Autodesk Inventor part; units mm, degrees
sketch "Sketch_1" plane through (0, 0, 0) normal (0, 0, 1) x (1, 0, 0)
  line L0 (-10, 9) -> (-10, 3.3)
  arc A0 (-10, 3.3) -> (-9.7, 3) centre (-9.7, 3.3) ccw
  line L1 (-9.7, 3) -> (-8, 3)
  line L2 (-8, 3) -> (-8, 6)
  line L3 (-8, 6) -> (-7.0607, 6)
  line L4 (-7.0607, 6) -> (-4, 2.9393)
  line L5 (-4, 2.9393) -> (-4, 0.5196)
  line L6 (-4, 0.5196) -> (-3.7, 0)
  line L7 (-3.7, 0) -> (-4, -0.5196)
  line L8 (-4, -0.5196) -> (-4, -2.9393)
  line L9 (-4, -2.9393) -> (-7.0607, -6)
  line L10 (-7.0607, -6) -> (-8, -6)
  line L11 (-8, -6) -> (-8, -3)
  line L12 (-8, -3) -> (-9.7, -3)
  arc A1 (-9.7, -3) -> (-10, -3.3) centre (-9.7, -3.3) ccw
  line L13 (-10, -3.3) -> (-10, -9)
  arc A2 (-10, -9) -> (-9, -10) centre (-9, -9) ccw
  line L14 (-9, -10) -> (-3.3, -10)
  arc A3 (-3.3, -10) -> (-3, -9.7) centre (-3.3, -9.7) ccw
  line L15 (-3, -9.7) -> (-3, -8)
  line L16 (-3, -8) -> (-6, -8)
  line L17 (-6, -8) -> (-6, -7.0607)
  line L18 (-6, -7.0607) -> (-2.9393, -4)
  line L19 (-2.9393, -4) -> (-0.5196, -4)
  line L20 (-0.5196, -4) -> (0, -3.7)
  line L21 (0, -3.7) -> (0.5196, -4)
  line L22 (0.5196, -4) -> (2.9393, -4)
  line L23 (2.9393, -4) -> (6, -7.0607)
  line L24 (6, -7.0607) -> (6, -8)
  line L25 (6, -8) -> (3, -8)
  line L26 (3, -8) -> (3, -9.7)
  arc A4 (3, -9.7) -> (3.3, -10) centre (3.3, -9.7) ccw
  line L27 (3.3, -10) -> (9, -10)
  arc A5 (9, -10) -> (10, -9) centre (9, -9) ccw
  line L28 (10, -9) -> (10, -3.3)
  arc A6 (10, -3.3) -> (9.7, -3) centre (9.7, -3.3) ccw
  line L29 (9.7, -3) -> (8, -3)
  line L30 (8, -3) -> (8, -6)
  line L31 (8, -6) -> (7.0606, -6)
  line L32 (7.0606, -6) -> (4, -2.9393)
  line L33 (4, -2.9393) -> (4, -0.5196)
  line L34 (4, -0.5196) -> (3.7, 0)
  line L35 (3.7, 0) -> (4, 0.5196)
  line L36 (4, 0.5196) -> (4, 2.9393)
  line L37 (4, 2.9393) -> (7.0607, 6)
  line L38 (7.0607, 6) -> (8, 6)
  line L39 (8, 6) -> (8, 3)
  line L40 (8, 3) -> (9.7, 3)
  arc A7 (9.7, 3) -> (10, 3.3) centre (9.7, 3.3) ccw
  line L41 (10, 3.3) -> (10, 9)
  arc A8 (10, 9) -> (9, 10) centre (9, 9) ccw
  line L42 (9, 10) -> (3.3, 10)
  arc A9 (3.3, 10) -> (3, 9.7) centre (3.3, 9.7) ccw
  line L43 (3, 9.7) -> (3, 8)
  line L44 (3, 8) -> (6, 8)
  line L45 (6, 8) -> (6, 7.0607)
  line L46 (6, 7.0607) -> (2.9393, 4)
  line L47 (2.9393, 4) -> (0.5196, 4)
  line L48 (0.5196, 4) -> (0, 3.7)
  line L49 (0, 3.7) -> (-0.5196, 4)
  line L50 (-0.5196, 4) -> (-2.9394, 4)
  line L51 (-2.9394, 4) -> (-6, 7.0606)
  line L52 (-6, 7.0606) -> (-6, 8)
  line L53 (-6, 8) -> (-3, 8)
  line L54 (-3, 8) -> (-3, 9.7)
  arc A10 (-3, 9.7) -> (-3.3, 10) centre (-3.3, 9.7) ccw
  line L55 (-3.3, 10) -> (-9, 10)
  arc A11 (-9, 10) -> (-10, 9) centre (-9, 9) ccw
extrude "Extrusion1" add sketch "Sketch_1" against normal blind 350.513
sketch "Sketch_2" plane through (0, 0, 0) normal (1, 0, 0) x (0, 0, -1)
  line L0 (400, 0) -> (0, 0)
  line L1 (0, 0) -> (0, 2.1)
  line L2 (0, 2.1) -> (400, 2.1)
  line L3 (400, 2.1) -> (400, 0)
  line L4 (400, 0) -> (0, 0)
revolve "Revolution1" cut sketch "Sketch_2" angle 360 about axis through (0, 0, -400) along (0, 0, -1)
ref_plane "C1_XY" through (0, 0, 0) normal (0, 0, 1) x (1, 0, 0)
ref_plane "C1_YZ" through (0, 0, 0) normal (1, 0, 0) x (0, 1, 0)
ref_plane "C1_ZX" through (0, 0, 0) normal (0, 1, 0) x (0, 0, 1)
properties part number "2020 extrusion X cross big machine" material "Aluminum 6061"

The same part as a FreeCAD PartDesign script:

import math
import FreeCAD as App
import Part
import Sketcher
Q = App.Units.Quantity


def add_polygon(sketch, points):
    """Adds a closed chain of lines whose ends are joined by coincident constraints."""
    first, n = sketch.GeometryCount, len(points)
    for a, b in zip(points, points[1:] + points[:1]):
        sketch.addGeometry(Part.LineSegment(App.Vector(*a, 0), App.Vector(*b, 0)), False)
    for i in range(n):
        sketch.addConstraint(Sketcher.Constraint("Coincident", first + i, 2, first + (i + 1) % n, 1))

doc = App.newDocument("Part")
body = doc.addObject("PartDesign::Body", "Body")

sketch1 = body.newObject("Sketcher::SketchObject", "Sketch")
sketch1.AttachmentSupport = (doc.getObject("XY_Plane"), [""])
sketch1.MapMode = "FlatFace"
sketch1.addGeometry([
    Part.ArcOfCircle(Part.Circle(App.Vector(-9, 9, 0), App.Vector(0, 0, 1), 1), math.radians(90), math.radians(180)),
    Part.LineSegment(App.Vector(-10, 9, 0), App.Vector(-10, 3.3, 0)),
    Part.ArcOfCircle(Part.Circle(App.Vector(-9.7, 3.3, 0), App.Vector(0, 0, 1), 0.3), math.radians(180), math.radians(270)),
    Part.LineSegment(App.Vector(-9.7, 3, 0), App.Vector(-8, 3, 0)),
    Part.LineSegment(App.Vector(-8, 3, 0), App.Vector(-8, 6, 0)),
    Part.LineSegment(App.Vector(-8, 6, 0), App.Vector(-7.06, 6, 0)),
    Part.LineSegment(App.Vector(-7.06, 6, 0), App.Vector(-4, 2.94, 0)),
    Part.LineSegment(App.Vector(-4, 2.94, 0), App.Vector(-4, 0.52, 0)),
    Part.LineSegment(App.Vector(-4, 0.52, 0), App.Vector(-3.7, 0, 0)),
    Part.LineSegment(App.Vector(-3.7, 0, 0), App.Vector(-4, -0.52, 0)),
    Part.LineSegment(App.Vector(-4, -0.52, 0), App.Vector(-4, -2.94, 0)),
    Part.LineSegment(App.Vector(-4, -2.94, 0), App.Vector(-7.06, -6, 0)),
    Part.LineSegment(App.Vector(-7.06, -6, 0), App.Vector(-8, -6, 0)),
    Part.LineSegment(App.Vector(-8, -6, 0), App.Vector(-8, -3, 0)),
    Part.LineSegment(App.Vector(-8, -3, 0), App.Vector(-9.7, -3, 0)),
    Part.ArcOfCircle(Part.Circle(App.Vector(-9.7, -3.3, 0), App.Vector(0, 0, 1), 0.3), math.radians(90), math.radians(180)),
    Part.LineSegment(App.Vector(-10, -3.3, 0), App.Vector(-10, -9, 0)),
    Part.ArcOfCircle(Part.Circle(App.Vector(-9, -9, 0), App.Vector(0, 0, 1), 1), math.radians(180), math.radians(270)),
    Part.LineSegment(App.Vector(-9, -10, 0), App.Vector(-3.3, -10, 0)),
    Part.ArcOfCircle(Part.Circle(App.Vector(-3.3, -9.7, 0), App.Vector(0, 0, 1), 0.3), math.radians(-90), math.radians(0)),
    Part.LineSegment(App.Vector(-3, -9.7, 0), App.Vector(-3, -8, 0)),
    Part.LineSegment(App.Vector(-3, -8, 0), App.Vector(-6, -8, 0)),
    Part.LineSegment(App.Vector(-6, -8, 0), App.Vector(-6, -7.06, 0)),
    Part.LineSegment(App.Vector(-6, -7.06, 0), App.Vector(-2.94, -4, 0)),
    Part.LineSegment(App.Vector(-2.94, -4, 0), App.Vector(-0.52, -4, 0)),
    Part.LineSegment(App.Vector(-0.52, -4, 0), App.Vector(0, -3.7, 0)),
    Part.LineSegment(App.Vector(0, -3.7, 0), App.Vector(0.52, -4, 0)),
    Part.LineSegment(App.Vector(0.52, -4, 0), App.Vector(2.94, -4, 0)),
    Part.LineSegment(App.Vector(2.94, -4, 0), App.Vector(6, -7.06, 0)),
    Part.LineSegment(App.Vector(6, -7.06, 0), App.Vector(6, -8, 0)),
    Part.LineSegment(App.Vector(6, -8, 0), App.Vector(3, -8, 0)),
    Part.LineSegment(App.Vector(3, -8, 0), App.Vector(3, -9.7, 0)),
    Part.ArcOfCircle(Part.Circle(App.Vector(3.3, -9.7, 0), App.Vector(0, 0, 1), 0.3), math.radians(180), math.radians(270)),
    Part.LineSegment(App.Vector(3.3, -10, 0), App.Vector(9, -10, 0)),
    Part.ArcOfCircle(Part.Circle(App.Vector(9, -9, 0), App.Vector(0, 0, 1), 1), math.radians(-90), math.radians(0)),
    Part.LineSegment(App.Vector(10, -9, 0), App.Vector(10, -3.3, 0)),
    Part.ArcOfCircle(Part.Circle(App.Vector(9.7, -3.3, 0), App.Vector(0, 0, 1), 0.3), math.radians(0), math.radians(90)),
    Part.LineSegment(App.Vector(9.7, -3, 0), App.Vector(8, -3, 0)),
    Part.LineSegment(App.Vector(8, -3, 0), App.Vector(8, -6, 0)),
    Part.LineSegment(App.Vector(8, -6, 0), App.Vector(7.06, -6, 0)),
    Part.LineSegment(App.Vector(7.06, -6, 0), App.Vector(4, -2.94, 0)),
    Part.LineSegment(App.Vector(4, -2.94, 0), App.Vector(4, -0.52, 0)),
    Part.LineSegment(App.Vector(4, -0.52, 0), App.Vector(3.7, 0, 0)),
    Part.LineSegment(App.Vector(3.7, 0, 0), App.Vector(4, 0.52, 0)),
    Part.LineSegment(App.Vector(4, 0.52, 0), App.Vector(4, 2.94, 0)),
    Part.LineSegment(App.Vector(4, 2.94, 0), App.Vector(7.06, 6, 0)),
    Part.LineSegment(App.Vector(7.06, 6, 0), App.Vector(8, 6, 0)),
    Part.LineSegment(App.Vector(8, 6, 0), App.Vector(8, 3, 0)),
    Part.LineSegment(App.Vector(8, 3, 0), App.Vector(9.7, 3, 0)),
    Part.ArcOfCircle(Part.Circle(App.Vector(9.7, 3.3, 0), App.Vector(0, 0, 1), 0.3), math.radians(-90), math.radians(0)),
    Part.LineSegment(App.Vector(10, 3.3, 0), App.Vector(10, 9, 0)),
    Part.ArcOfCircle(Part.Circle(App.Vector(9, 9, 0), App.Vector(0, 0, 1), 1), math.radians(0), math.radians(90)),
    Part.LineSegment(App.Vector(9, 10, 0), App.Vector(3.3, 10, 0)),
    Part.ArcOfCircle(Part.Circle(App.Vector(3.3, 9.7, 0), App.Vector(0, 0, 1), 0.3), math.radians(90), math.radians(180)),
    Part.LineSegment(App.Vector(3, 9.7, 0), App.Vector(3, 8, 0)),
    Part.LineSegment(App.Vector(3, 8, 0), App.Vector(6, 8, 0)),
    Part.LineSegment(App.Vector(6, 8, 0), App.Vector(6, 7.06, 0)),
    Part.LineSegment(App.Vector(6, 7.06, 0), App.Vector(2.94, 4, 0)),
    Part.LineSegment(App.Vector(2.94, 4, 0), App.Vector(0.52, 4, 0)),
    Part.LineSegment(App.Vector(0.52, 4, 0), App.Vector(0, 3.7, 0)),
    Part.LineSegment(App.Vector(0, 3.7, 0), App.Vector(-0.52, 4, 0)),
    Part.LineSegment(App.Vector(-0.52, 4, 0), App.Vector(-2.94, 4, 0)),
    Part.LineSegment(App.Vector(-2.94, 4, 0), App.Vector(-6, 7.06, 0)),
    Part.LineSegment(App.Vector(-6, 7.06, 0), App.Vector(-6, 8, 0)),
    Part.LineSegment(App.Vector(-6, 8, 0), App.Vector(-3, 8, 0)),
    Part.LineSegment(App.Vector(-3, 8, 0), App.Vector(-3, 9.7, 0)),
    Part.ArcOfCircle(Part.Circle(App.Vector(-3.3, 9.7, 0), App.Vector(0, 0, 1), 0.3), math.radians(0), math.radians(90)),
    Part.LineSegment(App.Vector(-3.3, 10, 0), App.Vector(-9, 10, 0)),
], False)
sketch1.addConstraint([
    Sketcher.Constraint("Tangent", 0, 2, 1, 1),
    Sketcher.Constraint("Tangent", 1, 2, 2, 1),
    Sketcher.Constraint("Tangent", 2, 2, 3, 1),
    Sketcher.Constraint("Coincident", 3, 2, 4, 1),
    Sketcher.Constraint("Coincident", 4, 2, 5, 1),
    Sketcher.Constraint("Coincident", 5, 2, 6, 1),
    Sketcher.Constraint("Coincident", 6, 2, 7, 1),
    Sketcher.Constraint("Coincident", 7, 2, 8, 1),
    Sketcher.Constraint("Coincident", 8, 2, 9, 1),
    Sketcher.Constraint("Coincident", 9, 2, 10, 1),
    Sketcher.Constraint("Coincident", 10, 2, 11, 1),
    Sketcher.Constraint("Coincident", 11, 2, 12, 1),
    Sketcher.Constraint("Coincident", 12, 2, 13, 1),
    Sketcher.Constraint("Coincident", 13, 2, 14, 1),
    Sketcher.Constraint("Tangent", 14, 2, 15, 1),
    Sketcher.Constraint("Tangent", 15, 2, 16, 1),
    Sketcher.Constraint("Tangent", 16, 2, 17, 1),
    Sketcher.Constraint("Tangent", 17, 2, 18, 1),
    Sketcher.Constraint("Tangent", 18, 2, 19, 1),
    Sketcher.Constraint("Tangent", 19, 2, 20, 1),
    Sketcher.Constraint("Coincident", 20, 2, 21, 1),
    Sketcher.Constraint("Coincident", 21, 2, 22, 1),
    Sketcher.Constraint("Coincident", 22, 2, 23, 1),
    Sketcher.Constraint("Coincident", 23, 2, 24, 1),
    Sketcher.Constraint("Coincident", 24, 2, 25, 1),
    Sketcher.Constraint("Coincident", 25, 2, 26, 1),
    Sketcher.Constraint("Coincident", 26, 2, 27, 1),
    Sketcher.Constraint("Coincident", 27, 2, 28, 1),
    Sketcher.Constraint("Coincident", 28, 2, 29, 1),
    Sketcher.Constraint("Coincident", 29, 2, 30, 1),
    Sketcher.Constraint("Coincident", 30, 2, 31, 1),
    Sketcher.Constraint("Tangent", 31, 2, 32, 1),
    Sketcher.Constraint("Tangent", 32, 2, 33, 1),
    Sketcher.Constraint("Tangent", 33, 2, 34, 1),
    Sketcher.Constraint("Tangent", 34, 2, 35, 1),
    Sketcher.Constraint("Tangent", 35, 2, 36, 1),
    Sketcher.Constraint("Tangent", 36, 2, 37, 1),
    Sketcher.Constraint("Coincident", 37, 2, 38, 1),
    Sketcher.Constraint("Coincident", 38, 2, 39, 1),
    Sketcher.Constraint("Coincident", 39, 2, 40, 1),
    Sketcher.Constraint("Coincident", 40, 2, 41, 1),
    Sketcher.Constraint("Coincident", 41, 2, 42, 1),
    Sketcher.Constraint("Coincident", 42, 2, 43, 1),
    Sketcher.Constraint("Coincident", 43, 2, 44, 1),
    Sketcher.Constraint("Coincident", 44, 2, 45, 1),
    Sketcher.Constraint("Coincident", 45, 2, 46, 1),
    Sketcher.Constraint("Coincident", 46, 2, 47, 1),
    Sketcher.Constraint("Coincident", 47, 2, 48, 1),
    Sketcher.Constraint("Tangent", 48, 2, 49, 1),
    Sketcher.Constraint("Tangent", 49, 2, 50, 1),
    Sketcher.Constraint("Tangent", 50, 2, 51, 1),
    Sketcher.Constraint("Tangent", 51, 2, 52, 1),
    Sketcher.Constraint("Tangent", 52, 2, 53, 1),
    Sketcher.Constraint("Tangent", 53, 2, 54, 1),
    Sketcher.Constraint("Coincident", 54, 2, 55, 1),
    Sketcher.Constraint("Coincident", 55, 2, 56, 1),
    Sketcher.Constraint("Coincident", 56, 2, 57, 1),
    Sketcher.Constraint("Coincident", 57, 2, 58, 1),
    Sketcher.Constraint("Coincident", 58, 2, 59, 1),
    Sketcher.Constraint("Coincident", 59, 2, 60, 1),
    Sketcher.Constraint("Coincident", 60, 2, 61, 1),
    Sketcher.Constraint("Coincident", 61, 2, 62, 1),
    Sketcher.Constraint("Coincident", 62, 2, 63, 1),
    Sketcher.Constraint("Coincident", 63, 2, 64, 1),
    Sketcher.Constraint("Coincident", 64, 2, 65, 1),
    Sketcher.Constraint("Tangent", 65, 2, 66, 1),
    Sketcher.Constraint("Tangent", 66, 2, 67, 1),
    Sketcher.Constraint("Tangent", 67, 2, 0, 1),
    Sketcher.Constraint("Vertical", 1),
    Sketcher.Constraint("Horizontal", 3),
    Sketcher.Constraint("Vertical", 4),
    Sketcher.Constraint("Horizontal", 5),
    Sketcher.Constraint("Vertical", 7),
    Sketcher.Constraint("Vertical", 10),
    Sketcher.Constraint("Horizontal", 12),
    Sketcher.Constraint("Vertical", 13),
    Sketcher.Constraint("Horizontal", 14),
    Sketcher.Constraint("Vertical", 16),
    Sketcher.Constraint("Horizontal", 18),
    Sketcher.Constraint("Vertical", 20),
    Sketcher.Constraint("Horizontal", 21),
    Sketcher.Constraint("Vertical", 22),
    Sketcher.Constraint("Horizontal", 24),
    Sketcher.Constraint("Horizontal", 27),
    Sketcher.Constraint("Vertical", 29),
    Sketcher.Constraint("Horizontal", 30),
    Sketcher.Constraint("Vertical", 31),
    Sketcher.Constraint("Horizontal", 33),
    Sketcher.Constraint("Vertical", 35),
    Sketcher.Constraint("Horizontal", 37),
    Sketcher.Constraint("Vertical", 38),
    Sketcher.Constraint("Horizontal", 39),
    Sketcher.Constraint("Vertical", 41),
    Sketcher.Constraint("Vertical", 44),
    Sketcher.Constraint("Horizontal", 46),
    Sketcher.Constraint("Vertical", 47),
    Sketcher.Constraint("Horizontal", 48),
    Sketcher.Constraint("Vertical", 50),
    Sketcher.Constraint("Horizontal", 52),
    Sketcher.Constraint("Vertical", 54),
    Sketcher.Constraint("Horizontal", 55),
    Sketcher.Constraint("Vertical", 56),
    Sketcher.Constraint("Horizontal", 58),
    Sketcher.Constraint("Horizontal", 61),
    Sketcher.Constraint("Vertical", 63),
    Sketcher.Constraint("Horizontal", 64),
    Sketcher.Constraint("Vertical", 65),
    Sketcher.Constraint("Horizontal", 67),
    Sketcher.Constraint("Equal", 2, 15),
    Sketcher.Constraint("Equal", 0, 17),
    Sketcher.Constraint("Equal", 15, 19),
    Sketcher.Constraint("Equal", 19, 32),
    Sketcher.Constraint("Equal", 17, 34),
    Sketcher.Constraint("Equal", 32, 36),
    Sketcher.Constraint("Equal", 36, 49),
    Sketcher.Constraint("Equal", 34, 51),
    Sketcher.Constraint("Equal", 49, 53),
    Sketcher.Constraint("Equal", 53, 66),
    Sketcher.Constraint("Symmetric", 0, 3, 34, 3, -1, 1),
    Sketcher.Constraint("Symmetric", 15, 3, 49, 3, -1, 1),
    Sketcher.Constraint("Symmetric", 19, 3, 53, 3, -1, 1),
    Sketcher.Constraint("Symmetric", 3, 2, 37, 2, -1, 1),
    Sketcher.Constraint("Symmetric", 5, 2, 39, 2, -1, 1),
    Sketcher.Constraint("Symmetric", 6, 2, 40, 2, -1, 1),
    Sketcher.Constraint("Symmetric", 8, 2, 42, 2, -1, 1),
    Sketcher.Constraint("Symmetric", 9, 2, 43, 2, -1, 1),
    Sketcher.Constraint("Symmetric", 11, 2, 45, 2, -1, 1),
    Sketcher.Constraint("Symmetric", 21, 2, 55, 2, -1, 1),
    Sketcher.Constraint("Symmetric", 23, 2, 57, 2, -1, 1),
    Sketcher.Constraint("Symmetric", 25, 2, 59, 2, -1, 1),
    Sketcher.Constraint("Symmetric", 26, 2, 60, 2, -1, 1),
    Sketcher.Constraint("Symmetric", 28, 2, 62, 2, -1, 1),
    Sketcher.Constraint("Symmetric", 30, 2, 64, 2, -1, 1),
    Sketcher.Constraint("Symmetric", 19, 3, 32, 3, -2),
    Sketcher.Constraint("Symmetric", 15, 3, 36, 3, -2),
    Sketcher.Constraint("Symmetric", 24, 2, 26, 2, -2),
    Sketcher.Constraint("Symmetric", 22, 2, 28, 2, -2),
    Sketcher.Constraint("Symmetric", 12, 2, 38, 2, -2),
    Sketcher.Constraint("Symmetric", 10, 2, 40, 2, -2),
    Sketcher.Constraint("PointOnObject", 8, 2, -1),
    Sketcher.Constraint("PointOnObject", 25, 2, -2),
    Sketcher.Constraint("Perpendicular", 6, 11),
    Sketcher.Constraint("Parallel", 11, 23),
    Sketcher.Constraint("Perpendicular", 8, 25),
    Sketcher.Constraint("Perpendicular", 9, 26),
    Sketcher.Constraint("Perpendicular", 23, 28),
    Sketcher.Constraint("Perpendicular", 25, 42),
    Sketcher.Constraint("Perpendicular", 40, 45),
    Sketcher.Constraint("Parallel", 45, 57),
    Sketcher.Constraint("Perpendicular", 42, 59),
    Sketcher.Constraint("Perpendicular", 57, 62),
    Sketcher.Constraint("Horizontal", 21, 2, 29, 2),
    Sketcher.Constraint("Vertical", 5, 2, 11, 2),
    Sketcher.Constraint("Vertical", 38, 2, 46, 2),
    Sketcher.Constraint("Equal", 67, 1),
    Sketcher.Constraint("Equal", 64, 4),
    Sketcher.Constraint("Equal", 61, 7),
    Sketcher.Constraint("Equal", 48, 20),
    Sketcher.Constraint("Equal", 46, 22),
    Sketcher.Constraint("Equal", 11, 23),
    Sketcher.Constraint("Equal", 9, 25),
    Sketcher.Constraint("Radius", 0, Q("1 mm")),
    Sketcher.Constraint("Radius", 2, Q("0.3 mm")),
    Sketcher.Constraint("DistanceX", 21, 2, 21, 1, Q("3 mm")),
    Sketcher.Constraint("Angle", 8, Q("-59.9993 deg")),
    Sketcher.Constraint("DistanceX", 3, 1, 3, 2, Q("1.7 mm")),
    Sketcher.Constraint("DistanceX", 18, 1, 18, 2, Q("5.7 mm")),
    Sketcher.Constraint("DistanceX", 0, 3, -1, 1, Q("9 mm")),
    Sketcher.Constraint("DistanceX", 6, 2, -1, 1, Q("4 mm")),
    Sketcher.Constraint("Distance", 8, Q("0.6 mm")),
    Sketcher.Constraint("DistanceX", 5, 1, 5, 2, Q("0.9393 mm")),
])
pad1 = body.newObject("PartDesign::Pad", "Pad")
pad1.Profile = sketch1
pad1.Length = 350.513
pad1.Reversed = True

sketch2 = body.newObject("Sketcher::SketchObject", "Sketch001")
sketch2.AttachmentSupport = (doc.getObject("YZ_Plane"), [""])
sketch2.MapMode = "FlatFace"
add_polygon(sketch2, [(0, 0), (0, -400), (2.1, -400), (2.1, 0)])
sketch2.addConstraint([
    Sketcher.Constraint("Vertical", 0),
    Sketcher.Constraint("Horizontal", 1),
    Sketcher.Constraint("Vertical", 2),
    Sketcher.Constraint("Horizontal", 3),
    Sketcher.Constraint("Coincident", 3, 2, -1, 1),
    Sketcher.Constraint("DistanceY", 0, 2, 0, 1, Q("400 mm")),
    Sketcher.Constraint("DistanceX", 1, 1, 1, 2, Q("2.1 mm")),
])
groove = body.newObject("PartDesign::Groove", "Groove")
groove.Profile = sketch2
groove.ReferenceAxis = (sketch2, ["V_Axis"])
groove.Angle = 360

doc.recompute()
